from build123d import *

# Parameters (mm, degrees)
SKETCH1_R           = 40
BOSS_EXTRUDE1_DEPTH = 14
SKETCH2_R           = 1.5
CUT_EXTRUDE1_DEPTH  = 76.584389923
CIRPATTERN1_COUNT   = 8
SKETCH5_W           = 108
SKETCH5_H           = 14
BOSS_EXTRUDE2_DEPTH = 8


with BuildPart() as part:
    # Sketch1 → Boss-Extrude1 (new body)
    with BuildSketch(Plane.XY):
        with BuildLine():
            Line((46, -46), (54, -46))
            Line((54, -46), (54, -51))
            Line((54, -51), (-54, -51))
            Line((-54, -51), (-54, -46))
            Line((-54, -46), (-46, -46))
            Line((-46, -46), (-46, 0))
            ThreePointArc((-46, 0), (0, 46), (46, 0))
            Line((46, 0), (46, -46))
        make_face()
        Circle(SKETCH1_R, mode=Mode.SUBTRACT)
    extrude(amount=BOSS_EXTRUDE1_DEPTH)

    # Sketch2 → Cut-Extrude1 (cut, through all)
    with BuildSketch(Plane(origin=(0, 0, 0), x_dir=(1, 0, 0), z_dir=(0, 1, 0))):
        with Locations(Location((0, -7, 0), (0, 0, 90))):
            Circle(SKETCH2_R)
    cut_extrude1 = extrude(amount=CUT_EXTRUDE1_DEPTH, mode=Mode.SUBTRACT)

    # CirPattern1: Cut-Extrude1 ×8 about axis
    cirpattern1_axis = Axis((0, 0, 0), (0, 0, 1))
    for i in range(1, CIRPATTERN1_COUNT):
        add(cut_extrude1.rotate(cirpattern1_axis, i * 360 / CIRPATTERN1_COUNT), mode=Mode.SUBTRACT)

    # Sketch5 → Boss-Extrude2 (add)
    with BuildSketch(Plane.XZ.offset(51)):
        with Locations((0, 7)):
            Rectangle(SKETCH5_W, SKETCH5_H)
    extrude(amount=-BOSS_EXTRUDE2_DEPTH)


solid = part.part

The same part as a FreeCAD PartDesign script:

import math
import FreeCAD as App
import Part
import Sketcher

V = App.Vector

doc = App.newDocument("Part")
body = doc.addObject("PartDesign::Body", "Body")

sketch1 = body.newObject("Sketcher::SketchObject", "Sketch")
sketch1.AttachmentSupport = (doc.getObject("XY_Plane"), [""])
sketch1.MapMode = "FlatFace"
sketch1.addGeometry([
    Part.LineSegment(V(54, -46, 0), V(46, -46, 0)),
    Part.LineSegment(V(46, -46, 0), V(46, 0, 0)),
    Part.ArcOfCircle(Part.Circle(V(0, 0, 0), V(0, 0, 1), 46), math.radians(0), math.radians(180)),
    Part.LineSegment(V(-46, 0, 0), V(-46, -46, 0)),
    Part.LineSegment(V(-46, -46, 0), V(-54, -46, 0)),
    Part.LineSegment(V(-54, -46, 0), V(-54, -51, 0)),
    Part.LineSegment(V(-54, -51, 0), V(54, -51, 0)),
    Part.LineSegment(V(54, -51, 0), V(54, -46, 0)),
    Part.Circle(V(0, 0, 0), V(0, 0, 1), 40),
], False)
sketch1.addConstraint([
    Sketcher.Constraint("Coincident", 0, 2, 1, 1),
    Sketcher.Constraint("Tangent", 1, 2, 2, 1),
    Sketcher.Constraint("Tangent", 2, 2, 3, 1),
    Sketcher.Constraint("Coincident", 3, 2, 4, 1),
    Sketcher.Constraint("Coincident", 4, 2, 5, 1),
    Sketcher.Constraint("Coincident", 5, 2, 6, 1),
    Sketcher.Constraint("Coincident", 6, 2, 7, 1),
    Sketcher.Constraint("Coincident", 7, 2, 0, 1),
    Sketcher.Constraint("Horizontal", 0),
    Sketcher.Constraint("Vertical", 1),
    Sketcher.Constraint("Vertical", 3),
    Sketcher.Constraint("Horizontal", 4),
    Sketcher.Constraint("Vertical", 5),
    Sketcher.Constraint("Horizontal", 6),
    Sketcher.Constraint("Vertical", 7),
    Sketcher.Constraint("Coincident", 2, 3, -1, 1),
    Sketcher.Constraint("Coincident", 8, 3, -1, 1),
    Sketcher.Constraint("Symmetric", 4, 2, 7, 2, -2),
    Sketcher.Constraint("Diameter", 8, 80.0),
    Sketcher.Constraint("Radius", 2, 46.0),
    Sketcher.Constraint("DistanceX", 0, 2, 0, 1, 8.0),
    Sketcher.Constraint("DistanceY", 1, 1, 1, 2, 46.0),
    Sketcher.Constraint("DistanceY", 5, 2, 5, 1, 5.0),
])
pad1 = body.newObject("PartDesign::Pad", "Pad")
pad1.Profile = sketch1
pad1.Length = 14

sketch2 = body.newObject("Sketcher::SketchObject", "Sketch001")
sketch2.AttachmentSupport = (doc.getObject("XZ_Plane"), [""])
sketch2.MapMode = "FlatFace"
sketch2.addGeometry(Part.Circle(V(0, 7, 0), V(0, 0, 1), 1.5), False)
sketch2.addConstraint([
    Sketcher.Constraint("PointOnObject", 0, 3, -2),
    Sketcher.Constraint("Diameter", 0, 3.0),
    Sketcher.Constraint("DistanceY", -1, 1, 0, 3, 7.0),
])
pocket1 = body.newObject("PartDesign::Pocket", "Pocket")
pocket1.Profile = sketch2
pocket1.Type = "ThroughAll"
doc.recompute()

polarpattern = body.newObject("PartDesign::PolarPattern", "PolarPattern")
polarpattern.Originals = [pocket1]
polarpattern.Axis = (doc.getObject("Z_Axis"), [""])
polarpattern.Angle = 360
polarpattern.Occurrences = 8
body.Tip = polarpattern

sketch3 = body.newObject("Sketcher::SketchObject", "Sketch002")
sketch3.AttachmentSupport = (doc.getObject("XZ_Plane"), [""])
sketch3.MapMode = "FlatFace"
sketch3.AttachmentOffset = App.Placement(V(0, 0, 51), App.Rotation())
sketch3.addGeometry([
    Part.LineSegment(V(-54, 14, 0), V(-54, 0, 0)),
    Part.LineSegment(V(-54, 0, 0), V(54, 0, 0)),
    Part.LineSegment(V(54, 0, 0), V(54, 14, 0)),
    Part.LineSegment(V(54, 14, 0), V(-54, 14, 0)),
], False)
sketch3.addConstraint([
    Sketcher.Constraint("Coincident", 0, 2, 1, 1),
    Sketcher.Constraint("Coincident", 1, 2, 2, 1),
    Sketcher.Constraint("Coincident", 2, 2, 3, 1),
    Sketcher.Constraint("Coincident", 3, 2, 0, 1),
    Sketcher.Constraint("Vertical", 0),
    Sketcher.Constraint("Horizontal", 1),
    Sketcher.Constraint("Vertical", 2),
    Sketcher.Constraint("Horizontal", 3),
    Sketcher.Constraint("Symmetric", 0, 2, 1, 2, -1, 1),
    Sketcher.Constraint("DistanceX", 1, 1, 1, 2, 108.0),
    Sketcher.Constraint("DistanceY", 0, 2, 0, 1, 14.0),
])
pad2 = body.newObject("PartDesign::Pad", "Pad001")
pad2.Profile = sketch3
pad2.Length = 8
pad2.Reversed = True

doc.recompute()
